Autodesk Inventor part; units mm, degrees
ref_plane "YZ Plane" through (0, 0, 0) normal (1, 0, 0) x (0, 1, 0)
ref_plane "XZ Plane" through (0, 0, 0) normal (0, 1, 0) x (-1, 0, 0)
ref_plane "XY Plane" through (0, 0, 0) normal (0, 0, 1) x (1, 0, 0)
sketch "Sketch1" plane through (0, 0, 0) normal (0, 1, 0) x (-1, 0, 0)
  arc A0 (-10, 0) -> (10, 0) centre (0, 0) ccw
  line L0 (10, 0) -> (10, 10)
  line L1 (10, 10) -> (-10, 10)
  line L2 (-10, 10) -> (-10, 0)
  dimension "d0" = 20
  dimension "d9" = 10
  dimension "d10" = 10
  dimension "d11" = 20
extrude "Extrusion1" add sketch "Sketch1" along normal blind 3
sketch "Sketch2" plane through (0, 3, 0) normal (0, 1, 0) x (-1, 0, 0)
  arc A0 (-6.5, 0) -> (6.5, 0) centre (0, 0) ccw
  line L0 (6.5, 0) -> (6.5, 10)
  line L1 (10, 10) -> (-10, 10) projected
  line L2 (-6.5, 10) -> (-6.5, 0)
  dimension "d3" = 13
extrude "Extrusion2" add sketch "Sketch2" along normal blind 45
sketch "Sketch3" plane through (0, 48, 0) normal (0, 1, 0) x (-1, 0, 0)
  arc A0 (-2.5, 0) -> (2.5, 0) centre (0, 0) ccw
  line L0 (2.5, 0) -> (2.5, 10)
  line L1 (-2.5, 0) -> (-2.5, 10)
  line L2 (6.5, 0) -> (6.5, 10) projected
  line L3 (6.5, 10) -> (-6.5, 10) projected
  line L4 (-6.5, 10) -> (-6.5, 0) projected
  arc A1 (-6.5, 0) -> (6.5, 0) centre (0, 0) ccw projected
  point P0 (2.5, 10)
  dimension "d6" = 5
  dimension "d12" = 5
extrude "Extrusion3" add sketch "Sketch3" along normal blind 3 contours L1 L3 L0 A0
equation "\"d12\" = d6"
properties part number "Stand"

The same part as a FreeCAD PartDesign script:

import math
import FreeCAD as App
import Part
import Sketcher

doc = App.newDocument("Part")
params = doc.addObject("Spreadsheet::Sheet", "Params")
for row, (alias, value) in enumerate([
    ("sketch1_radius", "10 mm"),
    ("sketch1_height", "10 mm"),
    ("pad1_length", "3 mm"),
    ("sketch2_radius", "6.5 mm"),
    ("sketch2_height", "10 mm"),
    ("pad2_length", "45 mm"),
    ("sketch3_radius", "2.5 mm"),
    ("sketch3_height", "10 mm"),
    ("pad3_length", "3 mm"),
], start=1):
    params.set(f"A{row}", alias)
    params.set(f"B{row}", "=" + value)
    params.setAlias(f"B{row}", alias)

body = doc.addObject("PartDesign::Body", "Body")

# Sketch on XZ plane
sketch1 = doc.addObject("Sketcher::SketchObject", "Sketch")
body.addObject(sketch1)
sketch1.AttachmentSupport = (doc.XZ_Plane, [""])
sketch1.MapMode = "FlatFace"
sketch1.addGeometry(Part.LineSegment(App.Vector(10, 10, 0), App.Vector(10, 0, 0)), False)
sketch1.addGeometry(Part.ArcOfCircle(Part.Circle(App.Vector(0, 0, 0), App.Vector(0, 0, 1), 10), math.radians(180), math.radians(360)), False)
sketch1.addGeometry(Part.LineSegment(App.Vector(-10, 0, 0), App.Vector(-10, 10, 0)), False)
sketch1.addGeometry(Part.LineSegment(App.Vector(-10, 10, 0), App.Vector(10, 10, 0)), False)
sketch1.addConstraint(Sketcher.Constraint("Tangent", 0, 2, 1, 2))
sketch1.addConstraint(Sketcher.Constraint("Tangent", 1, 1, 2, 1))
sketch1.addConstraint(Sketcher.Constraint("Coincident", 2, 2, 3, 1))
sketch1.addConstraint(Sketcher.Constraint("Coincident", 3, 2, 0, 1))
sketch1.addConstraint(Sketcher.Constraint("Vertical", 0))
sketch1.addConstraint(Sketcher.Constraint("Vertical", 2))
sketch1.addConstraint(Sketcher.Constraint("Horizontal", 3))
sketch1.addConstraint(Sketcher.Constraint("Coincident", 1, 3, -1, 1))
sketch1.addConstraint(Sketcher.Constraint("Radius", 1, 10.0))
sketch1.addConstraint(Sketcher.Constraint("DistanceY", 0, 2, 0, 1, 10.0))
sketch1.setExpression("Constraints[8]", "Params.sketch1_radius")
sketch1.setExpression("Constraints[9]", "Params.sketch1_height")
pad1 = doc.addObject("PartDesign::Pad", "Pad")
body.addObject(pad1)
pad1.Profile = sketch1
pad1.setExpression("Length", "Params.pad1_length")
pad1.Reversed = True

# Sketch on XZ plane
sketch2 = doc.addObject("Sketcher::SketchObject", "Sketch001")
body.addObject(sketch2)
sketch2.AttachmentSupport = (doc.XZ_Plane, [""])
sketch2.MapMode = "FlatFace"
sketch2.AttachmentOffset = App.Placement(App.Vector(0, 0, -3), App.Rotation())
sketch2.addGeometry(Part.LineSegment(App.Vector(6.5, 10, 0), App.Vector(6.5, 0, 0)), False)
sketch2.addGeometry(Part.ArcOfCircle(Part.Circle(App.Vector(0, 0, 0), App.Vector(0, 0, 1), 6.5), math.radians(180), math.radians(360)), False)
sketch2.addGeometry(Part.LineSegment(App.Vector(-6.5, 0, 0), App.Vector(-6.5, 10, 0)), False)
sketch2.addGeometry(Part.LineSegment(App.Vector(-6.5, 10, 0), App.Vector(6.5, 10, 0)), False)
sketch2.addConstraint(Sketcher.Constraint("Tangent", 0, 2, 1, 2))
sketch2.addConstraint(Sketcher.Constraint("Tangent", 1, 1, 2, 1))
sketch2.addConstraint(Sketcher.Constraint("Coincident", 2, 2, 3, 1))
sketch2.addConstraint(Sketcher.Constraint("Coincident", 3, 2, 0, 1))
sketch2.addConstraint(Sketcher.Constraint("Vertical", 0))
sketch2.addConstraint(Sketcher.Constraint("Vertical", 2))
sketch2.addConstraint(Sketcher.Constraint("Horizontal", 3))
sketch2.addConstraint(Sketcher.Constraint("Coincident", 1, 3, -1, 1))
sketch2.addConstraint(Sketcher.Constraint("Radius", 1, 6.5))
sketch2.addConstraint(Sketcher.Constraint("DistanceY", 0, 2, 0, 1, 10.0))
sketch2.setExpression("Constraints[8]", "Params.sketch2_radius")
sketch2.setExpression("Constraints[9]", "Params.sketch2_height")
pad2 = doc.addObject("PartDesign::Pad", "Pad001")
body.addObject(pad2)
pad2.Profile = sketch2
pad2.setExpression("Length", "Params.pad2_length")
pad2.Reversed = True

# Sketch on XZ plane
sketch3 = doc.addObject("Sketcher::SketchObject", "Sketch002")
body.addObject(sketch3)
sketch3.AttachmentSupport = (doc.XZ_Plane, [""])
sketch3.MapMode = "FlatFace"
sketch3.AttachmentOffset = App.Placement(App.Vector(0, 0, -48), App.Rotation())
sketch3.addGeometry(Part.LineSegment(App.Vector(2.5, 10, 0), App.Vector(2.5, 0, 0)), False)
sketch3.addGeometry(Part.ArcOfCircle(Part.Circle(App.Vector(0, 0, 0), App.Vector(0, 0, 1), 2.5), math.radians(180), math.radians(360)), False)
sketch3.addGeometry(Part.LineSegment(App.Vector(-2.5, 0, 0), App.Vector(-2.5, 10, 0)), False)
sketch3.addGeometry(Part.LineSegment(App.Vector(-2.5, 10, 0), App.Vector(2.5, 10, 0)), False)
sketch3.addConstraint(Sketcher.Constraint("Tangent", 0, 2, 1, 2))
sketch3.addConstraint(Sketcher.Constraint("Tangent", 1, 1, 2, 1))
sketch3.addConstraint(Sketcher.Constraint("Coincident", 2, 2, 3, 1))
sketch3.addConstraint(Sketcher.Constraint("Coincident", 3, 2, 0, 1))
sketch3.addConstraint(Sketcher.Constraint("Vertical", 0))
sketch3.addConstraint(Sketcher.Constraint("Vertical", 2))
sketch3.addConstraint(Sketcher.Constraint("Horizontal", 3))
sketch3.addConstraint(Sketcher.Constraint("Coincident", 1, 3, -1, 1))
sketch3.addConstraint(Sketcher.Constraint("Radius", 1, 2.5))
sketch3.addConstraint(Sketcher.Constraint("DistanceY", 0, 2, 0, 1, 10.0))
sketch3.setExpression("Constraints[8]", "Params.sketch3_radius")
sketch3.setExpression("Constraints[9]", "Params.sketch3_height")
pad3 = doc.addObject("PartDesign::Pad", "Pad002")
body.addObject(pad3)
pad3.Profile = sketch3
pad3.setExpression("Length", "Params.pad3_length")
pad3.Reversed = True

doc.recompute()
